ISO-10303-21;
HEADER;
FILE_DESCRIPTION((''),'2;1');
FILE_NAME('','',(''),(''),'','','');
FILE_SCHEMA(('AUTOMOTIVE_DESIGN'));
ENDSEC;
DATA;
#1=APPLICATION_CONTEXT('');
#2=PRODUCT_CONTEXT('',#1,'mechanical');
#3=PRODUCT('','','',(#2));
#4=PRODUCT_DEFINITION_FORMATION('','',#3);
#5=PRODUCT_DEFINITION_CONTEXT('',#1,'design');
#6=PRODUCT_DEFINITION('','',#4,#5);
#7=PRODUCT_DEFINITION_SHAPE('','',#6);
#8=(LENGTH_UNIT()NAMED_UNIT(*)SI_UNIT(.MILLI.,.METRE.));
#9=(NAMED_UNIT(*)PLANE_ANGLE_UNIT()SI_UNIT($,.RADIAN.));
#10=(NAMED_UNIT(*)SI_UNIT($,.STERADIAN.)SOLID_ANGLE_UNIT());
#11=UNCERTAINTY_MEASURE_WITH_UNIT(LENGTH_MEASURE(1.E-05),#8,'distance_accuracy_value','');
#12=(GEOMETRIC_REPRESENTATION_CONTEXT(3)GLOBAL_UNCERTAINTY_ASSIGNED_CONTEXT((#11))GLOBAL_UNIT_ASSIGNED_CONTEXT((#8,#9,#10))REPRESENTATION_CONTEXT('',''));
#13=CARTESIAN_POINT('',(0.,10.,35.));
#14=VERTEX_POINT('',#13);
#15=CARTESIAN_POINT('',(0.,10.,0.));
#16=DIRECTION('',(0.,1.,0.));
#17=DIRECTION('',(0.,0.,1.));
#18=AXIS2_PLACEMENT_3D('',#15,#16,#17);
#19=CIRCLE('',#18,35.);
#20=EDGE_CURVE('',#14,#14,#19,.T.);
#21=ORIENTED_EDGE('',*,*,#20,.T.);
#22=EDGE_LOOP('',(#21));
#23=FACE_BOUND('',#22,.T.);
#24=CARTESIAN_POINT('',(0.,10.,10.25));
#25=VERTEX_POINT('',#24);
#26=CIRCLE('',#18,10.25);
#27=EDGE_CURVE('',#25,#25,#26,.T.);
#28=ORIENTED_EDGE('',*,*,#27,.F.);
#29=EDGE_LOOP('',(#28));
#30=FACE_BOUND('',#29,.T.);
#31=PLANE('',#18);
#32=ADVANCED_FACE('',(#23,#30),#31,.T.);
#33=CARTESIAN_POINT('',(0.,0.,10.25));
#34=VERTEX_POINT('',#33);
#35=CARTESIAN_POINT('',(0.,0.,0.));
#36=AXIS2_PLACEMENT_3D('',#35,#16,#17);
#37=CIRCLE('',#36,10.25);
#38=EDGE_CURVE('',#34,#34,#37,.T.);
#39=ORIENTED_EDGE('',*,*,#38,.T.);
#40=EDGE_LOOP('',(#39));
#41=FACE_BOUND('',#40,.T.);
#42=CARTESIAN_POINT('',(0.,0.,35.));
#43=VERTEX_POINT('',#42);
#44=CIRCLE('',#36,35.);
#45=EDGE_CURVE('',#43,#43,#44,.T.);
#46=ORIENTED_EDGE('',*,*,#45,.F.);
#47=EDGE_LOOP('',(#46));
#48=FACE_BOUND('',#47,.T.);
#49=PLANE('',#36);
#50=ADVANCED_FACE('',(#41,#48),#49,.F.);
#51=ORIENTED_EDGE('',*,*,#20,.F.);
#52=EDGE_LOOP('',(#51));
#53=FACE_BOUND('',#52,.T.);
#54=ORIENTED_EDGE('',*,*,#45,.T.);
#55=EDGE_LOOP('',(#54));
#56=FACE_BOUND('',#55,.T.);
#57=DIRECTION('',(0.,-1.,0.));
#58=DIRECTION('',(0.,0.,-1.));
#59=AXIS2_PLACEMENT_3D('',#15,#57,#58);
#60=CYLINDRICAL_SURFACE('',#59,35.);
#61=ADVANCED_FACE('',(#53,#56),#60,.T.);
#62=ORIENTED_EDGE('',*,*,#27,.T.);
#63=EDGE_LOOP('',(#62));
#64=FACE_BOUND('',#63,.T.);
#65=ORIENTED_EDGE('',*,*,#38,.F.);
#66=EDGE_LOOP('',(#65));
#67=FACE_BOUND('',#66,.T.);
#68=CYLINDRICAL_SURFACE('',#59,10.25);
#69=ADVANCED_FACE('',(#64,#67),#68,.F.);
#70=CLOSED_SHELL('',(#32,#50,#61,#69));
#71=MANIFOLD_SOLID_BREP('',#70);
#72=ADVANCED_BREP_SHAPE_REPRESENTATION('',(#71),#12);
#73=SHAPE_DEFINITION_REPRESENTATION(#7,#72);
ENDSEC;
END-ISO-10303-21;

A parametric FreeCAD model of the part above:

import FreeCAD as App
import Part
import Sketcher

V = App.Vector
Q = App.Units.Quantity

doc = App.newDocument("Part")
body = doc.addObject("PartDesign::Body", "Body")

# Sketch on XZ plane
sketch1 = body.newObject("Sketcher::SketchObject", "Sketch")
sketch1.AttachmentSupport = (doc.getObject("XZ_Plane"), [""])
sketch1.MapMode = "FlatFace"
sketch1.addGeometry([
    Part.Circle(V(0, 0, 0), V(0, 0, 1), 35),
    Part.Circle(V(0, 0, 0), V(0, 0, 1), 10),
], False)
sketch1.addConstraint([
    Sketcher.Constraint("Coincident", 0, 3, -1, 1),
    Sketcher.Constraint("Coincident", 1, 3, -1, 1),
    Sketcher.Constraint("Diameter", 0, Q("70 mm")),
    Sketcher.Constraint("Diameter", 1, Q("20.5 mm")),
])
pad1 = body.newObject("PartDesign::Pad", "Pad")
pad1.Profile = sketch1
pad1.Length = 10
pad1.Reversed = True

doc.recompute()
